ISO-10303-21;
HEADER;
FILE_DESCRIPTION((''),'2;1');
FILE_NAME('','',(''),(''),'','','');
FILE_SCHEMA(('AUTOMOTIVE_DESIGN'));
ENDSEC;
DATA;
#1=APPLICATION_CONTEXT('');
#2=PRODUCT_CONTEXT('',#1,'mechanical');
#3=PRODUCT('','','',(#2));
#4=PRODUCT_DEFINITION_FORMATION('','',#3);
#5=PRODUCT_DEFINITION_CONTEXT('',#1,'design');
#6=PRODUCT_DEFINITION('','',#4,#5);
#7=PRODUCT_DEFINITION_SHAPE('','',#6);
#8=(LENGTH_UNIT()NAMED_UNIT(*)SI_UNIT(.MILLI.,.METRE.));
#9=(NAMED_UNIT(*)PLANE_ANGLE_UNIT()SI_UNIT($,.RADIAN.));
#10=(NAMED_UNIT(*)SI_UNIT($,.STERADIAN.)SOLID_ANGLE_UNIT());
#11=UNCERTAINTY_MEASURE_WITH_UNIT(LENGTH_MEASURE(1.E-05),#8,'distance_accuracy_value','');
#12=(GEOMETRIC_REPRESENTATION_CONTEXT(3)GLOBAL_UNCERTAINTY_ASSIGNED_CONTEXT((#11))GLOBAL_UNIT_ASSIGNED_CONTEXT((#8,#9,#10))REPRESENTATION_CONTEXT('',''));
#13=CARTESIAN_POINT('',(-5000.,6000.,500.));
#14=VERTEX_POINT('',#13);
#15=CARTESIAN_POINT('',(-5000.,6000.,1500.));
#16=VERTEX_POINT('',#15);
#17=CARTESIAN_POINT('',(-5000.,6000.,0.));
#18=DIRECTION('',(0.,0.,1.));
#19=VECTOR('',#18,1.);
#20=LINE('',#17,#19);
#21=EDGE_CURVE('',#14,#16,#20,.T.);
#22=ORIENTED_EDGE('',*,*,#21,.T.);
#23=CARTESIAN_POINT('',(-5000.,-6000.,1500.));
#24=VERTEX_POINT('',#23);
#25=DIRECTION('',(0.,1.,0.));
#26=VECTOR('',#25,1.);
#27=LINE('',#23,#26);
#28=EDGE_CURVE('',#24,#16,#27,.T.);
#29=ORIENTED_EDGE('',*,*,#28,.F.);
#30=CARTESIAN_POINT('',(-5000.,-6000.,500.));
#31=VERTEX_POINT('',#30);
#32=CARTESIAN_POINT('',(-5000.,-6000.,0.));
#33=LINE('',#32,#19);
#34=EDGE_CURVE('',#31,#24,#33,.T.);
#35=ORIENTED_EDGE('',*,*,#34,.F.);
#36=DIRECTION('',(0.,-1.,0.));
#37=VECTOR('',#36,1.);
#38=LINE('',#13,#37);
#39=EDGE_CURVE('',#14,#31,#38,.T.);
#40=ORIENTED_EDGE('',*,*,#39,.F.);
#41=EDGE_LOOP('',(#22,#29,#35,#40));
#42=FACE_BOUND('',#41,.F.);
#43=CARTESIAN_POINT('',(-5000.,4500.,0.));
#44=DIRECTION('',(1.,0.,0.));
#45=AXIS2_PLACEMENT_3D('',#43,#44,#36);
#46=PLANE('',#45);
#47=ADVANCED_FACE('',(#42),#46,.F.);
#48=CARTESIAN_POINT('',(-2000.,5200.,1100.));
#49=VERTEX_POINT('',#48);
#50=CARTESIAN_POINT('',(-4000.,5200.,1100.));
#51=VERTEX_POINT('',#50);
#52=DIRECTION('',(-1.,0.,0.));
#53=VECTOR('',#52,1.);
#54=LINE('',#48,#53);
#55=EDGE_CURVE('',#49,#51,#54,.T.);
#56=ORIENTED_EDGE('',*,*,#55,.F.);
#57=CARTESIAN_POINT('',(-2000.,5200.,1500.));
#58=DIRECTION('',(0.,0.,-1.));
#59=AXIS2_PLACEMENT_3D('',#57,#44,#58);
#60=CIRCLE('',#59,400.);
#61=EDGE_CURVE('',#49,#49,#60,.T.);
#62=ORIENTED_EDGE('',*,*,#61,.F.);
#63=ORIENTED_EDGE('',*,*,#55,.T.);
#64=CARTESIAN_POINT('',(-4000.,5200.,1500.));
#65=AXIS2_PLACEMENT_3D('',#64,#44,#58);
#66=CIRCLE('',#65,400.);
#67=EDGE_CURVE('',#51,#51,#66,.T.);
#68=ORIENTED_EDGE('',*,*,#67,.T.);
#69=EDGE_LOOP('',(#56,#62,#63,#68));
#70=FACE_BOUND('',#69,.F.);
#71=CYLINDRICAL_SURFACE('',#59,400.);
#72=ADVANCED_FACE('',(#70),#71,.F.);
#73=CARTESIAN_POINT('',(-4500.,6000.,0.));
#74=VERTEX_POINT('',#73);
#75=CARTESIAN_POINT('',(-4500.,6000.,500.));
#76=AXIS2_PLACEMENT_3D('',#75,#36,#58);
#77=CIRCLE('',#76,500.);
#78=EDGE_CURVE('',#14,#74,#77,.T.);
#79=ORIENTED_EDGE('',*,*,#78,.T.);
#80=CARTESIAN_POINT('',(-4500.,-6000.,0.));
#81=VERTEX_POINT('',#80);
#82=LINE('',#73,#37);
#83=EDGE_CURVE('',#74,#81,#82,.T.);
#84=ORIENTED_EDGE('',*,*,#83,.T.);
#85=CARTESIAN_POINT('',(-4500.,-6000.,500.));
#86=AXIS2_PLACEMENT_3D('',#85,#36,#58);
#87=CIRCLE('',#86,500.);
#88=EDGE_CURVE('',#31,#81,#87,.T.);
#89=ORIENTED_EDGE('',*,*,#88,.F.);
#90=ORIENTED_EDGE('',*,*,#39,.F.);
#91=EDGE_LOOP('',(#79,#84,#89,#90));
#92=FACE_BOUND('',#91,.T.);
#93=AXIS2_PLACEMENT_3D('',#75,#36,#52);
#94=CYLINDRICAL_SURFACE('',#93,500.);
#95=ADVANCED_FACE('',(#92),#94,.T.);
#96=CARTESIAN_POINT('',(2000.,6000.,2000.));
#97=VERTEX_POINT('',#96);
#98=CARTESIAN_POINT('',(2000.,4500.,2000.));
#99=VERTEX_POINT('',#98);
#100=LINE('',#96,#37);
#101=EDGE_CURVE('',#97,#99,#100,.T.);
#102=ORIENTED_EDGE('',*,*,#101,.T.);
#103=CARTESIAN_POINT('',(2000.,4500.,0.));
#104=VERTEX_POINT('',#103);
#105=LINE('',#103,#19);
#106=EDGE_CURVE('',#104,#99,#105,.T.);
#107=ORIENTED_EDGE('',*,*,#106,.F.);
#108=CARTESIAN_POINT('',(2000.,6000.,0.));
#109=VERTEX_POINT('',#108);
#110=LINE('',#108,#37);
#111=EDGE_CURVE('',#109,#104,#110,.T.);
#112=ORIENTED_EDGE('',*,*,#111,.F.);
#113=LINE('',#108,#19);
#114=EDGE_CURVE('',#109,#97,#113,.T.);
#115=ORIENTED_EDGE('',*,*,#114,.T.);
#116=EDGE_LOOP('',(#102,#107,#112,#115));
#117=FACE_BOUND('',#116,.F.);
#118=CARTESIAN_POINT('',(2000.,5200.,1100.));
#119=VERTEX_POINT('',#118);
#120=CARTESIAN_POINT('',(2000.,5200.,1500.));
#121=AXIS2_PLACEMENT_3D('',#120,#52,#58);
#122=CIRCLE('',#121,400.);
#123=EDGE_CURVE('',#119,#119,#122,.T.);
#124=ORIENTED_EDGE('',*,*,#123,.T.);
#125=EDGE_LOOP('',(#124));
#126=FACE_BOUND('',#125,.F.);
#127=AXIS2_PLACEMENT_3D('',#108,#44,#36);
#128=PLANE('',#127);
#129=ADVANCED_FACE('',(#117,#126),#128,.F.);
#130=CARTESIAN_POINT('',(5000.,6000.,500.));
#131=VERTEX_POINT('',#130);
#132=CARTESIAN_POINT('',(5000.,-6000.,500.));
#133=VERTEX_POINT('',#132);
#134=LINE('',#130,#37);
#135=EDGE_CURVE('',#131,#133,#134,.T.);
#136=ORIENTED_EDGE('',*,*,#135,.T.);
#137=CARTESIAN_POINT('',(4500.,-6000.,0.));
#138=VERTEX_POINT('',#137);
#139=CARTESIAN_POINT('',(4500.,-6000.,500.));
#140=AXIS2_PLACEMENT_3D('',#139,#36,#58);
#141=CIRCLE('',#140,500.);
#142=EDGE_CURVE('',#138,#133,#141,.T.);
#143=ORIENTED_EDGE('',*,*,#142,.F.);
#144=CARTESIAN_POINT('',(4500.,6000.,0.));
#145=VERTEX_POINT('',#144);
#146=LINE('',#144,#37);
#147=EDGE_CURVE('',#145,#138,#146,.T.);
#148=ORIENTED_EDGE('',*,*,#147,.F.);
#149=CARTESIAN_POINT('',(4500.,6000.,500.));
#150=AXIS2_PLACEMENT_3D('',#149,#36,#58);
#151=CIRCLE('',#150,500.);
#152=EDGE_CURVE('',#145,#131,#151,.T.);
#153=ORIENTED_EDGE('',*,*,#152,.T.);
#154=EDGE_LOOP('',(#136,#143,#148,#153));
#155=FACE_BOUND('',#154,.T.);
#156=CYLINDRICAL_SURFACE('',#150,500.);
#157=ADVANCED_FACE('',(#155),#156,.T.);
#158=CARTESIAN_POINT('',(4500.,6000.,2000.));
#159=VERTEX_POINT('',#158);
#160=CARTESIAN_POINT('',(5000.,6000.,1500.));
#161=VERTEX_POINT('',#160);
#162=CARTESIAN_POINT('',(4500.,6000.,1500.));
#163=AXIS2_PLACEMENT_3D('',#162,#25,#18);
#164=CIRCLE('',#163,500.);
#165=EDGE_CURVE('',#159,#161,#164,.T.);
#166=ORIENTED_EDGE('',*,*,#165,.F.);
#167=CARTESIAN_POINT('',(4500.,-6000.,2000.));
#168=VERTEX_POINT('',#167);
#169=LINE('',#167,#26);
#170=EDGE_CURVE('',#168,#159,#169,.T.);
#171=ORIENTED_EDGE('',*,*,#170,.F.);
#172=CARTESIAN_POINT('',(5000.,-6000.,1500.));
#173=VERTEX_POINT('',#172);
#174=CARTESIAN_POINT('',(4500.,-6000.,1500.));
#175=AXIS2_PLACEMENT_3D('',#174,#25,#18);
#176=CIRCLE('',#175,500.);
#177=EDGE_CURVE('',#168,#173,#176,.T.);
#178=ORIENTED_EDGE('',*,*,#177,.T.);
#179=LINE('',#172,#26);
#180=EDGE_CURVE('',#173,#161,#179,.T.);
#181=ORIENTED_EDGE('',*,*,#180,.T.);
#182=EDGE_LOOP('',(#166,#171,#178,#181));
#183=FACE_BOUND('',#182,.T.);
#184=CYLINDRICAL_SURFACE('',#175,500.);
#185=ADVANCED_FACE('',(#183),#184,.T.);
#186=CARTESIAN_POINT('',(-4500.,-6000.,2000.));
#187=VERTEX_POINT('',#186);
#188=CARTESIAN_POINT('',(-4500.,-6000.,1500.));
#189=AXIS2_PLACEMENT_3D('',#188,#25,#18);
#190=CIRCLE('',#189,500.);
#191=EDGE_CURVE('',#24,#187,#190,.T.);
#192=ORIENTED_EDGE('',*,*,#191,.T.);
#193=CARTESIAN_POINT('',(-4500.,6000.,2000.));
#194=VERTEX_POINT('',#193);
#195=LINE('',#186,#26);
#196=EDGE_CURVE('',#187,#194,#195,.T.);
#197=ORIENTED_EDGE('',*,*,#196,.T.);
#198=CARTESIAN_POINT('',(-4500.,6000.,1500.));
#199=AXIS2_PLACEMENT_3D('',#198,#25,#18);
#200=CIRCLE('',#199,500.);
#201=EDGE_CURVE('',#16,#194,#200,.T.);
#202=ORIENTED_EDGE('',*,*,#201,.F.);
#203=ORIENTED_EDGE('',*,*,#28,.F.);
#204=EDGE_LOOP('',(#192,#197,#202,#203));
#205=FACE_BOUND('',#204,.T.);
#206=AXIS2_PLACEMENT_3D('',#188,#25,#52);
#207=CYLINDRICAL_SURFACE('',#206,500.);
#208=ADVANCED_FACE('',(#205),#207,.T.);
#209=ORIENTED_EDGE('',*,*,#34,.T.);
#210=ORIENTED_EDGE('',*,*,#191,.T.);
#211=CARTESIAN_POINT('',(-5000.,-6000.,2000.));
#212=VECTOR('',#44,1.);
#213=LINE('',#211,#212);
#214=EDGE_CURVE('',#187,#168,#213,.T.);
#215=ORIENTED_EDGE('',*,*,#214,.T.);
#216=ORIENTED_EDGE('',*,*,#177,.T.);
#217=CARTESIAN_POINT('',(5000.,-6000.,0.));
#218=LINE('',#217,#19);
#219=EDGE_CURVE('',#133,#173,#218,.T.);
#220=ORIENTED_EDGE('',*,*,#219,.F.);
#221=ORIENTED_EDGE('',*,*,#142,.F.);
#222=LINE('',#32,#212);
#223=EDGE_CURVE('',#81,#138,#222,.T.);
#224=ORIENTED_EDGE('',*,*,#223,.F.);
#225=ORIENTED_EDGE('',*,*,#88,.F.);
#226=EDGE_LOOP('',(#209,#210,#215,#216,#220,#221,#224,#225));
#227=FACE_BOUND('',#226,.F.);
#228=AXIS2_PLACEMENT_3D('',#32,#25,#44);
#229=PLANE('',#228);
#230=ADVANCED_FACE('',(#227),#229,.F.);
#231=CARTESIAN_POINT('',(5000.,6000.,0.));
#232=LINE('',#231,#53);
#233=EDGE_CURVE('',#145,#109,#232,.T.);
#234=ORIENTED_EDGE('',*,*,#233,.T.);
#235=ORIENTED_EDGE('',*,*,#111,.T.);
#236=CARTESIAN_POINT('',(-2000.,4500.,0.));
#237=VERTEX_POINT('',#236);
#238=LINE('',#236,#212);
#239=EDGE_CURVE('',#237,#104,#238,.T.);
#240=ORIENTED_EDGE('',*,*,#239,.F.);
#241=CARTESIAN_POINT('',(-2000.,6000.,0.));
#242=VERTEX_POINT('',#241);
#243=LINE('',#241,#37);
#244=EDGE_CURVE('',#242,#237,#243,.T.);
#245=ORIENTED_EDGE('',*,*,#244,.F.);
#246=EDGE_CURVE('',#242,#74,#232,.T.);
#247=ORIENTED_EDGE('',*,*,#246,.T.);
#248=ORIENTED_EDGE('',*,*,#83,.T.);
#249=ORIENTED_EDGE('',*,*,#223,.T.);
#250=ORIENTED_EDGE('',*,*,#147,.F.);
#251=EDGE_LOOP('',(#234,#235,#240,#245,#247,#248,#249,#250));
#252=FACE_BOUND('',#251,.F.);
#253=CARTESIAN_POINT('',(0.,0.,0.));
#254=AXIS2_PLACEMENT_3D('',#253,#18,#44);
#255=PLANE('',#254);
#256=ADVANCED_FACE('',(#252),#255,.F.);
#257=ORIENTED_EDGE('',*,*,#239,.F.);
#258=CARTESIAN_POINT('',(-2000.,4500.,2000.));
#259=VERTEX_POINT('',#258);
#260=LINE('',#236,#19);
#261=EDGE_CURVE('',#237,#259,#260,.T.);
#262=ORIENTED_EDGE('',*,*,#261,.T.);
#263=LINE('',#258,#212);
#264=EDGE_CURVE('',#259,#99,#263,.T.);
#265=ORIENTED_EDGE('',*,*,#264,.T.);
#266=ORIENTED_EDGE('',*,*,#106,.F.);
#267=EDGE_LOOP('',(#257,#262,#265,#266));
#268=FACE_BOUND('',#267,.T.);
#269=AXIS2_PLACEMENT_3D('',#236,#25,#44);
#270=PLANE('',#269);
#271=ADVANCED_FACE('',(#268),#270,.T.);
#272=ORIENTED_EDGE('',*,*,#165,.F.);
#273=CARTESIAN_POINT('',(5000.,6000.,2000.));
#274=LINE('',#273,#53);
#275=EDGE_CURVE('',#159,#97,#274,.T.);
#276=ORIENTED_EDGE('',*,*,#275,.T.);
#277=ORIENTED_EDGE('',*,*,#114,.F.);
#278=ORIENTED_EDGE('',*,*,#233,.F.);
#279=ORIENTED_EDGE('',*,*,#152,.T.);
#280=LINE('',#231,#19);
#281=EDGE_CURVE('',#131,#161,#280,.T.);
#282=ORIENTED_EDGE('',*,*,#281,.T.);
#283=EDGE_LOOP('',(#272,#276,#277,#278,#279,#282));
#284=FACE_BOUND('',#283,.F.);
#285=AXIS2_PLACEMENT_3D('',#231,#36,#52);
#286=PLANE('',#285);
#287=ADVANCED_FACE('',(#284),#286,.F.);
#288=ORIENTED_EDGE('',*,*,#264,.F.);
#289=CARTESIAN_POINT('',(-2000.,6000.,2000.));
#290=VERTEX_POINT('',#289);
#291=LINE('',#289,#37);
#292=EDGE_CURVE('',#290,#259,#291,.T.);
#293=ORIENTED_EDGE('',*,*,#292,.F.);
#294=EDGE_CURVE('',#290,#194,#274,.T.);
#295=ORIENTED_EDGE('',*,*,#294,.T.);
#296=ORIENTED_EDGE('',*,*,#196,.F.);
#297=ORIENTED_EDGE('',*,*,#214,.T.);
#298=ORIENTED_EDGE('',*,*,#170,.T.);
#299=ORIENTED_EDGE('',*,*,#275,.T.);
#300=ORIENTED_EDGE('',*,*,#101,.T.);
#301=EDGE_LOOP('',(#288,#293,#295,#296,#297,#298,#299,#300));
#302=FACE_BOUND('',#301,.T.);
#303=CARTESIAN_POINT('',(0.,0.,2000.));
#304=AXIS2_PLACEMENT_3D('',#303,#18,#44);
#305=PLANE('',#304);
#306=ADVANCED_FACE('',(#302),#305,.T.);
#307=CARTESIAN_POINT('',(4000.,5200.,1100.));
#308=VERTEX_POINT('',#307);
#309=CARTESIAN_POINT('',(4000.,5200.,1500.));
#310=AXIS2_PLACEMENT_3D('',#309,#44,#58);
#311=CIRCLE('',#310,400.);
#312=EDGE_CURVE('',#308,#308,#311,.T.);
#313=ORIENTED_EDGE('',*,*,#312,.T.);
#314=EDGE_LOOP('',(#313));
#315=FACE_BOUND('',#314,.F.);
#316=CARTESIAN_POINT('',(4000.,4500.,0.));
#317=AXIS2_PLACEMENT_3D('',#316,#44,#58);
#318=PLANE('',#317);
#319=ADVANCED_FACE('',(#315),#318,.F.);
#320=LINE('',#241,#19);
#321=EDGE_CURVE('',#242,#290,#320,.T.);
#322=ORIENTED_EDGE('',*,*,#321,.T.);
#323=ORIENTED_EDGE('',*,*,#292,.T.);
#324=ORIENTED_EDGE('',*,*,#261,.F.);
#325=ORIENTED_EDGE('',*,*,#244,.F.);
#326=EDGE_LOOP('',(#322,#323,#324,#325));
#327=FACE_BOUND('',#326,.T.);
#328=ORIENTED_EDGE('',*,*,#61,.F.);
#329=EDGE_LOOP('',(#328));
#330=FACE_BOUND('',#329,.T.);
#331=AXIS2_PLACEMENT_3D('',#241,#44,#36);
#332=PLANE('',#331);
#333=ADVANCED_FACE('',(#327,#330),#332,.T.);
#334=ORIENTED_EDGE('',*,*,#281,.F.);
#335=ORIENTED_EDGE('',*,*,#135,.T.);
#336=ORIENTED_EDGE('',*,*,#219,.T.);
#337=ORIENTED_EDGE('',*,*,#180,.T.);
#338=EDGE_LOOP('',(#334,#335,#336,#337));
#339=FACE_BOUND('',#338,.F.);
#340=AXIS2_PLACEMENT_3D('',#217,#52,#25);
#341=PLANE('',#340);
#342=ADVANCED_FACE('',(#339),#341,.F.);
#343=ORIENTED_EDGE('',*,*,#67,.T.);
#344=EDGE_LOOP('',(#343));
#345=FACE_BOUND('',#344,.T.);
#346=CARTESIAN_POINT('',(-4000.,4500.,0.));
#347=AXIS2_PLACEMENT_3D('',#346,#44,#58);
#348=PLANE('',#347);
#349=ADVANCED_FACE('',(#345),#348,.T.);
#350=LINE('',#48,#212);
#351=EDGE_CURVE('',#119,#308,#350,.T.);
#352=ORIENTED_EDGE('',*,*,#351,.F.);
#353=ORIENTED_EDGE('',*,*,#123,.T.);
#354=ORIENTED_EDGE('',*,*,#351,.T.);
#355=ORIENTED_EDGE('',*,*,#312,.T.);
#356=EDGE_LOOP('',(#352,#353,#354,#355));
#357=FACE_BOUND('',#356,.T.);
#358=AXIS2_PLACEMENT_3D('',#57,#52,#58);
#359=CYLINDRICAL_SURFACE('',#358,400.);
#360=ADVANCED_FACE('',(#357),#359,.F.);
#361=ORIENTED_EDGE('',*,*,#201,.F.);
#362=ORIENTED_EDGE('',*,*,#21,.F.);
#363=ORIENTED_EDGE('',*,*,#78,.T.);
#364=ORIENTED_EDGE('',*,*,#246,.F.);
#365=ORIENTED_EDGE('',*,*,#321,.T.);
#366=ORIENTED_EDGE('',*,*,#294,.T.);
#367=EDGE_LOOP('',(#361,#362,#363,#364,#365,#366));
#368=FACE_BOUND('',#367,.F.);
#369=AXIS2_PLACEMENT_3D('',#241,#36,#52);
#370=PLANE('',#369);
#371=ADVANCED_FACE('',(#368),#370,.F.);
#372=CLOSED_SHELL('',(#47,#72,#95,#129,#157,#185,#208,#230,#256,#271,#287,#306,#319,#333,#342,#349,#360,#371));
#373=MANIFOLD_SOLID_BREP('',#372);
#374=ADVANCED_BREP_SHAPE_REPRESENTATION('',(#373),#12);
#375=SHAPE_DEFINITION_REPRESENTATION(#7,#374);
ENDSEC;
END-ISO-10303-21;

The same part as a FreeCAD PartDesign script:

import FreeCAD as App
import Part
import Sketcher


def edges_at(feature, points):
    """Names of the edges that pass closest to the given points."""
    edges = feature.Shape.Edges
    near = lambda p: min(range(len(edges)), key=lambda i: edges[i].distToShape(Part.Vertex(*p))[0])
    return sorted({f"Edge{near(p) + 1}" for p in points})


def add_polygon(sketch, points):
    """Adds a closed chain of lines whose ends are joined by coincident constraints."""
    first, n = sketch.GeometryCount, len(points)
    for a, b in zip(points, points[1:] + points[:1]):
        sketch.addGeometry(Part.LineSegment(App.Vector(*a, 0), App.Vector(*b, 0)), False)
    for i in range(n):
        sketch.addConstraint(Sketcher.Constraint("Coincident", first + i, 2, first + (i + 1) % n, 1))

doc = App.newDocument("Part")
body = doc.addObject("PartDesign::Body", "Body")

sketch1 = body.newObject("Sketcher::SketchObject", "Sketch")
sketch1.AttachmentSupport = (doc.getObject("XY_Plane"), [""])
sketch1.MapMode = "FlatFace"
add_polygon(sketch1, [(-5000, 6000), (-5000, -6000), (5000, -6000), (5000, 6000), (2000, 6000), (2000, 4500), (-2000, 4500), (-2000, 6000)])
sketch1.addConstraint(Sketcher.Constraint("Vertical", 0))
sketch1.addConstraint(Sketcher.Constraint("Horizontal", 1))
sketch1.addConstraint(Sketcher.Constraint("Vertical", 2))
sketch1.addConstraint(Sketcher.Constraint("Horizontal", 3))
sketch1.addConstraint(Sketcher.Constraint("Vertical", 4))
sketch1.addConstraint(Sketcher.Constraint("Horizontal", 5))
sketch1.addConstraint(Sketcher.Constraint("Vertical", 6))
sketch1.addConstraint(Sketcher.Constraint("Horizontal", 7))
sketch1.addConstraint(Sketcher.Constraint("Symmetric", 0, 2, 2, 2, -1, 1))
sketch1.addConstraint(Sketcher.Constraint("Symmetric", 3, 2, 6, 2, -2))
sketch1.addConstraint(Sketcher.Constraint("DistanceX", 3, 2, 3, 1, 3000.0))
sketch1.addConstraint(Sketcher.Constraint("DistanceY", 0, 2, 0, 1, 12000.0))
sketch1.addConstraint(Sketcher.Constraint("DistanceX", 1, 1, 1, 2, 10000.0))
sketch1.addConstraint(Sketcher.Constraint("DistanceY", 4, 2, 4, 1, 1500.0))
pad1 = body.newObject("PartDesign::Pad", "Pad")
pad1.Profile = sketch1
pad1.Length = 2000

sketch2 = body.newObject("Sketcher::SketchObject", "Sketch001")
sketch2.AttachmentSupport = (doc.getObject("YZ_Plane"), [""])
sketch2.MapMode = "FlatFace"
sketch2.AttachmentOffset = App.Placement(App.Vector(0, 0, -2000), App.Rotation())
sketch2.addGeometry(Part.Circle(App.Vector(5200, 1500, 0), App.Vector(0, 0, 1), 400), False)
sketch2.addConstraint(Sketcher.Constraint("Diameter", 0, 800.0))
sketch2.addConstraint(Sketcher.Constraint("DistanceX", -1, 1, 0, 3, 5200.0))
sketch2.addConstraint(Sketcher.Constraint("DistanceY", -1, 1, 0, 3, 1500.0))
pocket1 = body.newObject("PartDesign::Pocket", "Pocket")
pocket1.Profile = sketch2
pocket1.Length = 2000

sketch3 = body.newObject("Sketcher::SketchObject", "Sketch002")
sketch3.AttachmentSupport = (doc.getObject("YZ_Plane"), [""])
sketch3.MapMode = "FlatFace"
sketch3.AttachmentOffset = App.Placement(App.Vector(0, 0, -2000), App.Rotation())
sketch3.addGeometry(Part.Circle(App.Vector(5200, 1500, 0), App.Vector(0, 0, 1), 400), False)
sketch3.addConstraint(Sketcher.Constraint("Diameter", 0, 800.0))
sketch3.addConstraint(Sketcher.Constraint("DistanceX", -1, 1, 0, 3, 5200.0))
sketch3.addConstraint(Sketcher.Constraint("DistanceY", -1, 1, 0, 3, 1500.0))
pocket2 = body.newObject("PartDesign::Pocket", "Pocket001")
pocket2.Profile = sketch3
pocket2.Length = 6000
pocket2.Reversed = True
doc.recompute()

fillet = body.newObject("PartDesign::Fillet", "Fillet")
fillet.Base = (pocket2, edges_at(pocket2, [
    (-5000, 0, 0),
    (-5000, 0, 2000),
    (5000, 0, 0),
    (5000, 0, 2000),
]))
fillet.Radius = 500

doc.recompute()
